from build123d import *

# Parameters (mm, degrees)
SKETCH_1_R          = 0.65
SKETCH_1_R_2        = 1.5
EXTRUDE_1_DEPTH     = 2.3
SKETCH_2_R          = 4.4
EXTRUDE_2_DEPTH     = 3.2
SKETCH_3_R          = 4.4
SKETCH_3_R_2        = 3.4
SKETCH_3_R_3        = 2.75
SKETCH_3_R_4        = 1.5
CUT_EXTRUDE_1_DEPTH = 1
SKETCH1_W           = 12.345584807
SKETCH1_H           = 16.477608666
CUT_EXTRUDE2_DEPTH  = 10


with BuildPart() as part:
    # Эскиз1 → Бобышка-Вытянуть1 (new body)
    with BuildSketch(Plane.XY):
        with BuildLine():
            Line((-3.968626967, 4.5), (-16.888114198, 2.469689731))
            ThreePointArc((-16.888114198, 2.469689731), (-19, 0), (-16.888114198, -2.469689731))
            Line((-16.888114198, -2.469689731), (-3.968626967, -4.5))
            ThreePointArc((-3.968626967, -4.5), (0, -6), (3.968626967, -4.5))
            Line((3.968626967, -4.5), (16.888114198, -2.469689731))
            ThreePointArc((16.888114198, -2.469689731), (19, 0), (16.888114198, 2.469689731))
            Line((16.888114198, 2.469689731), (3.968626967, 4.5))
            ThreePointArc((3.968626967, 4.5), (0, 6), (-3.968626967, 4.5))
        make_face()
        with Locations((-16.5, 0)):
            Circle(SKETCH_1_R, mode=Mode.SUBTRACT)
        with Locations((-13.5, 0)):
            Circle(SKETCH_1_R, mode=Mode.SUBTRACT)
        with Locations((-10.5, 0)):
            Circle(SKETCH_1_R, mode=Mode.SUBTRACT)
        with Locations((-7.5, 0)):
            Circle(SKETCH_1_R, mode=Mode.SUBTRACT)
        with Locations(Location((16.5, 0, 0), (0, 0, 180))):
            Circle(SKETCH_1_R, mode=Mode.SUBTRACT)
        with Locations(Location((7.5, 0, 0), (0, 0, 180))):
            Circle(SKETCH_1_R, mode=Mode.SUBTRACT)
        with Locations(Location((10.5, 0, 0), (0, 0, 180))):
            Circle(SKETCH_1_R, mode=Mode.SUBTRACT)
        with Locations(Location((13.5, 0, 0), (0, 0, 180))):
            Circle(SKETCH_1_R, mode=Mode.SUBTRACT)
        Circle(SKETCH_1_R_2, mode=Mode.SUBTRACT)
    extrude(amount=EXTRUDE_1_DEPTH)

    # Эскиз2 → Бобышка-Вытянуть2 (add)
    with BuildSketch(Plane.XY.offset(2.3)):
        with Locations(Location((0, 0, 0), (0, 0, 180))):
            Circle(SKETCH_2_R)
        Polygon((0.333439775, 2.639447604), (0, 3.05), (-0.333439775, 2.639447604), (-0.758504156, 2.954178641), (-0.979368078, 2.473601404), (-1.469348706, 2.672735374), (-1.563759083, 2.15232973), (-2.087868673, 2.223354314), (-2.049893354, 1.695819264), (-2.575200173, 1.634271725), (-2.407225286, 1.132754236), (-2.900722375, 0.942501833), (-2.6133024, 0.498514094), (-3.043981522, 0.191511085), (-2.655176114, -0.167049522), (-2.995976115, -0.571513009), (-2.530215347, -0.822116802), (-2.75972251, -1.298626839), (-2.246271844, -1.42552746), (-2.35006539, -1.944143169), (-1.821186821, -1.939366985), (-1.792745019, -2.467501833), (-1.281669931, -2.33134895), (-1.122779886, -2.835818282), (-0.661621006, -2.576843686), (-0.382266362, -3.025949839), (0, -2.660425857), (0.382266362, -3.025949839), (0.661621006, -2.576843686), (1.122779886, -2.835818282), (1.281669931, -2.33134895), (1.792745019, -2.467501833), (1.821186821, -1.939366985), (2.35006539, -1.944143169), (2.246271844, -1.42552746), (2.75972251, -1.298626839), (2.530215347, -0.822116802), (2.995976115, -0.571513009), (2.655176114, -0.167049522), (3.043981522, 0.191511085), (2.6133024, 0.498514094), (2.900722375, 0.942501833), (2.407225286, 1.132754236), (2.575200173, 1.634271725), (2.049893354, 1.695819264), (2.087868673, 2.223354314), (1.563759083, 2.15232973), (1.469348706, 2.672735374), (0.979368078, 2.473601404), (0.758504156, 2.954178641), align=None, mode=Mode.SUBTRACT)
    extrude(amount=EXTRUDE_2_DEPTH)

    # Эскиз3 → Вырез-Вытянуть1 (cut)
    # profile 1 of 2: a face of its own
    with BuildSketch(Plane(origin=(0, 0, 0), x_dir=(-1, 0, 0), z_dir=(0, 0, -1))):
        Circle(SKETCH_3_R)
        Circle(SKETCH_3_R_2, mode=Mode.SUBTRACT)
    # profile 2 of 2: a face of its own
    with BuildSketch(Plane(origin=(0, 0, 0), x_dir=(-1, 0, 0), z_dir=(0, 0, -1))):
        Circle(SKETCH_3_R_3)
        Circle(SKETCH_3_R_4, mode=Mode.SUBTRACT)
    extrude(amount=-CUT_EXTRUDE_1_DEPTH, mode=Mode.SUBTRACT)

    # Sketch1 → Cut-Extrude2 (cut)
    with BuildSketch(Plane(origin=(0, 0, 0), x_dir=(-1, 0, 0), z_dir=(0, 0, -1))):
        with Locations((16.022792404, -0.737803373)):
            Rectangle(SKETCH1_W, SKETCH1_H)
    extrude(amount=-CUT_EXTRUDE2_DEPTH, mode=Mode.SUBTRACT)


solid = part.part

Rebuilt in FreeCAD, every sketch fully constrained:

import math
import FreeCAD as App
import Part
import Sketcher

doc = App.newDocument("Part")
body = doc.addObject("PartDesign::Body", "Body")

sketch1 = doc.addObject("Sketcher::SketchObject", "Sketch")
body.addObject(sketch1)
sketch1.AttachmentSupport = (doc.XY_Plane, [""])
sketch1.MapMode = "FlatFace"
sketch1.addGeometry([
    Part.LineSegment(App.Vector(-3.968627, 4.5, 0), App.Vector(-16.888114, 2.46969, 0)),
    Part.ArcOfCircle(Part.Circle(App.Vector(-16.5, 0, 0), App.Vector(0, 0, 1), 2.5), math.radians(98.931045), math.radians(261.068955)),
    Part.LineSegment(App.Vector(-16.888114, -2.46969, 0), App.Vector(-3.968627, -4.5, 0)),
    Part.ArcOfCircle(Part.Circle(App.Vector(0, 0, 0), App.Vector(0, 0, 1), 6), math.radians(-131.409622), math.radians(-48.590378)),
    Part.LineSegment(App.Vector(3.968627, -4.5, 0), App.Vector(16.888114, -2.46969, 0)),
    Part.ArcOfCircle(Part.Circle(App.Vector(16.5, 0, 0), App.Vector(0, 0, 1), 2.5), math.radians(-81.068955), math.radians(81.068955)),
    Part.LineSegment(App.Vector(16.888114, 2.46969, 0), App.Vector(3.968627, 4.5, 0)),
    Part.ArcOfCircle(Part.Circle(App.Vector(0, 0, 0), App.Vector(0, 0, 1), 6), math.radians(48.590378), math.radians(131.409622)),
    Part.Circle(App.Vector(-16.5, 0, 0), App.Vector(0, 0, 1), 0.65),
    Part.Circle(App.Vector(-13.5, 0, 0), App.Vector(0, 0, 1), 0.65),
    Part.Circle(App.Vector(-10.5, 0, 0), App.Vector(0, 0, 1), 0.65),
    Part.Circle(App.Vector(-7.5, 0, 0), App.Vector(0, 0, 1), 0.65),
    Part.Circle(App.Vector(0, 0, 0), App.Vector(0, 0, 1), 1.5),
    Part.Circle(App.Vector(7.5, 0, 0), App.Vector(0, 0, 1), 0.65),
    Part.Circle(App.Vector(10.5, 0, 0), App.Vector(0, 0, 1), 0.65),
    Part.Circle(App.Vector(13.5, 0, 0), App.Vector(0, 0, 1), 0.65),
    Part.Circle(App.Vector(16.5, 0, 0), App.Vector(0, 0, 1), 0.65),
], False)
sketch1.addConstraint([
    Sketcher.Constraint("Tangent", 0, 2, 1, 1),
    Sketcher.Constraint("Tangent", 1, 2, 2, 1),
    Sketcher.Constraint("Coincident", 2, 2, 3, 1),
    Sketcher.Constraint("Coincident", 3, 2, 4, 1),
    Sketcher.Constraint("Tangent", 4, 2, 5, 1),
    Sketcher.Constraint("Tangent", 5, 2, 6, 1),
    Sketcher.Constraint("Coincident", 6, 2, 7, 1),
    Sketcher.Constraint("Coincident", 7, 2, 0, 1),
    Sketcher.Constraint("Coincident", 3, 3, -1, 1),
    Sketcher.Constraint("Coincident", 7, 3, -1, 1),
    Sketcher.Constraint("Coincident", 12, 3, -1, 1),
    Sketcher.Constraint("Coincident", 8, 3, 1, 3),
    Sketcher.Constraint("Coincident", 16, 3, 5, 3),
    Sketcher.Constraint("Equal", 1, 5),
    Sketcher.Constraint("Equal", 3, 7),
    Sketcher.Constraint("Equal", 8, 9),
    Sketcher.Constraint("Equal", 9, 10),
    Sketcher.Constraint("Equal", 10, 11),
    Sketcher.Constraint("Equal", 11, 13),
    Sketcher.Constraint("Equal", 13, 14),
    Sketcher.Constraint("Equal", 14, 15),
    Sketcher.Constraint("Equal", 15, 16),
    Sketcher.Constraint("Symmetric", 1, 3, 5, 3, -1, 1),
    Sketcher.Constraint("Symmetric", 11, 3, 13, 3, -1, 1),
    Sketcher.Constraint("Symmetric", 10, 3, 14, 3, -1, 1),
    Sketcher.Constraint("Symmetric", 9, 3, 15, 3, -1, 1),
    Sketcher.Constraint("Symmetric", 1, 2, 4, 2, -2),
    Sketcher.Constraint("PointOnObject", 9, 3, -1),
    Sketcher.Constraint("PointOnObject", 10, 3, -1),
    Sketcher.Constraint("PointOnObject", 11, 3, -1),
    Sketcher.Constraint("Parallel", 0, 4),
    Sketcher.Constraint("Parallel", 2, 6),
    Sketcher.Constraint("Diameter", 12, 3.0),
    Sketcher.Constraint("Radius", 3, 6.0),
    Sketcher.Constraint("Diameter", 8, 1.3),
    Sketcher.Constraint("Radius", 1, 2.5),
    Sketcher.Constraint("DistanceX", 1, 3, 5, 3, 33.0),
    Sketcher.Constraint("DistanceX", 1, 3, 9, 3, 3.0),
    Sketcher.Constraint("DistanceX", 9, 3, 10, 3, 3.0),
    Sketcher.Constraint("DistanceX", 10, 3, 11, 3, 3.0),
    Sketcher.Constraint("DistanceY", 2, 2, -1, 1, 4.5),
])
pad1 = doc.addObject("PartDesign::Pad", "Pad")
body.addObject(pad1)
pad1.Profile = sketch1
pad1.Length = 2.3

sketch2 = doc.addObject("Sketcher::SketchObject", "Sketch001")
body.addObject(sketch2)
sketch2.AttachmentSupport = (doc.XY_Plane, [""])
sketch2.MapMode = "FlatFace"
sketch2.AttachmentOffset = App.Placement(App.Vector(0, 0, 2.3), App.Rotation())
sketch2.addGeometry([
    Part.Circle(App.Vector(0, 0, 0), App.Vector(0, 0, 1), 4.4),
    Part.LineSegment(App.Vector(0, 3.05, 0), App.Vector(0.33344, 2.639448, 0)),
    Part.LineSegment(App.Vector(0.33344, 2.639448, 0), App.Vector(0.758504, 2.954179, 0)),
    Part.LineSegment(App.Vector(0.758504, 2.954179, 0), App.Vector(0.979368, 2.473601, 0)),
    Part.LineSegment(App.Vector(0.979368, 2.473601, 0), App.Vector(1.469349, 2.672735, 0)),
    Part.LineSegment(App.Vector(1.469349, 2.672735, 0), App.Vector(1.563759, 2.15233, 0)),
    Part.LineSegment(App.Vector(1.563759, 2.15233, 0), App.Vector(2.087869, 2.223354, 0)),
    Part.LineSegment(App.Vector(2.087869, 2.223354, 0), App.Vector(2.049893, 1.695819, 0)),
    Part.LineSegment(App.Vector(2.049893, 1.695819, 0), App.Vector(2.5752, 1.634272, 0)),
    Part.LineSegment(App.Vector(2.5752, 1.634272, 0), App.Vector(2.407225, 1.132754, 0)),
    Part.LineSegment(App.Vector(2.407225, 1.132754, 0), App.Vector(2.900722, 0.942502, 0)),
    Part.LineSegment(App.Vector(2.900722, 0.942502, 0), App.Vector(2.613302, 0.498514, 0)),
    Part.LineSegment(App.Vector(2.613302, 0.498514, 0), App.Vector(3.043982, 0.191511, 0)),
    Part.LineSegment(App.Vector(3.043982, 0.191511, 0), App.Vector(2.655176, -0.16705, 0)),
    Part.LineSegment(App.Vector(2.655176, -0.16705, 0), App.Vector(2.995976, -0.571513, 0)),
    Part.LineSegment(App.Vector(2.995976, -0.571513, 0), App.Vector(2.530215, -0.822117, 0)),
    Part.LineSegment(App.Vector(2.530215, -0.822117, 0), App.Vector(2.759723, -1.298627, 0)),
    Part.LineSegment(App.Vector(2.759723, -1.298627, 0), App.Vector(2.246272, -1.425527, 0)),
    Part.LineSegment(App.Vector(2.246272, -1.425527, 0), App.Vector(2.350065, -1.944143, 0)),
    Part.LineSegment(App.Vector(2.350065, -1.944143, 0), App.Vector(1.821187, -1.939367, 0)),
    Part.LineSegment(App.Vector(1.821187, -1.939367, 0), App.Vector(1.792745, -2.467502, 0)),
    Part.LineSegment(App.Vector(1.792745, -2.467502, 0), App.Vector(1.28167, -2.331349, 0)),
    Part.LineSegment(App.Vector(1.28167, -2.331349, 0), App.Vector(1.12278, -2.835818, 0)),
    Part.LineSegment(App.Vector(1.12278, -2.835818, 0), App.Vector(0.661621, -2.576844, 0)),
    Part.LineSegment(App.Vector(0.661621, -2.576844, 0), App.Vector(0.382266, -3.02595, 0)),
    Part.LineSegment(App.Vector(0.382266, -3.02595, 0), App.Vector(0, -2.660426, 0)),
    Part.LineSegment(App.Vector(0, -2.660426, 0), App.Vector(-0.382266, -3.02595, 0)),
    Part.LineSegment(App.Vector(-0.382266, -3.02595, 0), App.Vector(-0.661621, -2.576844, 0)),
    Part.LineSegment(App.Vector(-0.661621, -2.576844, 0), App.Vector(-1.12278, -2.835818, 0)),
    Part.LineSegment(App.Vector(-1.12278, -2.835818, 0), App.Vector(-1.28167, -2.331349, 0)),
    Part.LineSegment(App.Vector(-1.28167, -2.331349, 0), App.Vector(-1.792745, -2.467502, 0)),
    Part.LineSegment(App.Vector(-1.792745, -2.467502, 0), App.Vector(-1.821187, -1.939367, 0)),
    Part.LineSegment(App.Vector(-1.821187, -1.939367, 0), App.Vector(-2.350065, -1.944143, 0)),
    Part.LineSegment(App.Vector(-2.350065, -1.944143, 0), App.Vector(-2.246272, -1.425527, 0)),
    Part.LineSegment(App.Vector(-2.246272, -1.425527, 0), App.Vector(-2.759723, -1.298627, 0)),
    Part.LineSegment(App.Vector(-2.759723, -1.298627, 0), App.Vector(-2.530215, -0.822117, 0)),
    Part.LineSegment(App.Vector(-2.530215, -0.822117, 0), App.Vector(-2.995976, -0.571513, 0)),
    Part.LineSegment(App.Vector(-2.995976, -0.571513, 0), App.Vector(-2.655176, -0.16705, 0)),
    Part.LineSegment(App.Vector(-2.655176, -0.16705, 0), App.Vector(-3.043982, 0.191511, 0)),
    Part.LineSegment(App.Vector(-3.043982, 0.191511, 0), App.Vector(-2.613302, 0.498514, 0)),
    Part.LineSegment(App.Vector(-2.613302, 0.498514, 0), App.Vector(-2.900722, 0.942502, 0)),
    Part.LineSegment(App.Vector(-2.900722, 0.942502, 0), App.Vector(-2.407225, 1.132754, 0)),
    Part.LineSegment(App.Vector(-2.407225, 1.132754, 0), App.Vector(-2.5752, 1.634272, 0)),
    Part.LineSegment(App.Vector(-2.5752, 1.634272, 0), App.Vector(-2.049893, 1.695819, 0)),
    Part.LineSegment(App.Vector(-2.049893, 1.695819, 0), App.Vector(-2.087869, 2.223354, 0)),
    Part.LineSegment(App.Vector(-2.087869, 2.223354, 0), App.Vector(-1.563759, 2.15233, 0)),
    Part.LineSegment(App.Vector(-1.563759, 2.15233, 0), App.Vector(-1.469349, 2.672735, 0)),
    Part.LineSegment(App.Vector(-1.469349, 2.672735, 0), App.Vector(-0.979368, 2.473601, 0)),
    Part.LineSegment(App.Vector(-0.979368, 2.473601, 0), App.Vector(-0.758504, 2.954179, 0)),
    Part.LineSegment(App.Vector(-0.758504, 2.954179, 0), App.Vector(-0.33344, 2.639448, 0)),
    Part.LineSegment(App.Vector(-0.33344, 2.639448, 0), App.Vector(0, 3.05, 0)),
], False)
sketch2.addConstraint([
    Sketcher.Constraint("Coincident", 1, 2, 2, 1),
    Sketcher.Constraint("Coincident", 2, 2, 3, 1),
    Sketcher.Constraint("Coincident", 3, 2, 4, 1),
    Sketcher.Constraint("Coincident", 4, 2, 5, 1),
    Sketcher.Constraint("Coincident", 5, 2, 6, 1),
    Sketcher.Constraint("Coincident", 6, 2, 7, 1),
    Sketcher.Constraint("Coincident", 7, 2, 8, 1),
    Sketcher.Constraint("Coincident", 8, 2, 9, 1),
    Sketcher.Constraint("Coincident", 9, 2, 10, 1),
    Sketcher.Constraint("Coincident", 10, 2, 11, 1),
    Sketcher.Constraint("Coincident", 11, 2, 12, 1),
    Sketcher.Constraint("Coincident", 12, 2, 13, 1),
    Sketcher.Constraint("Coincident", 13, 2, 14, 1),
    Sketcher.Constraint("Coincident", 14, 2, 15, 1),
    Sketcher.Constraint("Coincident", 15, 2, 16, 1),
    Sketcher.Constraint("Coincident", 16, 2, 17, 1),
    Sketcher.Constraint("Coincident", 17, 2, 18, 1),
    Sketcher.Constraint("Coincident", 18, 2, 19, 1),
    Sketcher.Constraint("Coincident", 19, 2, 20, 1),
    Sketcher.Constraint("Coincident", 20, 2, 21, 1),
    Sketcher.Constraint("Coincident", 21, 2, 22, 1),
    Sketcher.Constraint("Coincident", 22, 2, 23, 1),
    Sketcher.Constraint("Coincident", 23, 2, 24, 1),
    Sketcher.Constraint("Coincident", 24, 2, 25, 1),
    Sketcher.Constraint("Coincident", 25, 2, 26, 1),
    Sketcher.Constraint("Coincident", 26, 2, 27, 1),
    Sketcher.Constraint("Coincident", 27, 2, 28, 1),
    Sketcher.Constraint("Coincident", 28, 2, 29, 1),
    Sketcher.Constraint("Coincident", 29, 2, 30, 1),
    Sketcher.Constraint("Coincident", 30, 2, 31, 1),
    Sketcher.Constraint("Coincident", 31, 2, 32, 1),
    Sketcher.Constraint("Coincident", 32, 2, 33, 1),
    Sketcher.Constraint("Coincident", 33, 2, 34, 1),
    Sketcher.Constraint("Coincident", 34, 2, 35, 1),
    Sketcher.Constraint("Coincident", 35, 2, 36, 1),
    Sketcher.Constraint("Coincident", 36, 2, 37, 1),
    Sketcher.Constraint("Coincident", 37, 2, 38, 1),
    Sketcher.Constraint("Coincident", 38, 2, 39, 1),
    Sketcher.Constraint("Coincident", 39, 2, 40, 1),
    Sketcher.Constraint("Coincident", 40, 2, 41, 1),
    Sketcher.Constraint("Coincident", 41, 2, 42, 1),
    Sketcher.Constraint("Coincident", 42, 2, 43, 1),
    Sketcher.Constraint("Coincident", 43, 2, 44, 1),
    Sketcher.Constraint("Coincident", 44, 2, 45, 1),
    Sketcher.Constraint("Coincident", 45, 2, 46, 1),
    Sketcher.Constraint("Coincident", 46, 2, 47, 1),
    Sketcher.Constraint("Coincident", 47, 2, 48, 1),
    Sketcher.Constraint("Coincident", 48, 2, 49, 1),
    Sketcher.Constraint("Coincident", 49, 2, 50, 1),
    Sketcher.Constraint("Coincident", 50, 2, 1, 1),
    Sketcher.Constraint("Coincident", 0, 3, -1, 1),
    Sketcher.Constraint("Symmetric", 24, 2, 26, 2, -2),
    Sketcher.Constraint("Symmetric", 23, 2, 27, 2, -2),
    Sketcher.Constraint("Symmetric", 22, 2, 28, 2, -2),
    Sketcher.Constraint("Symmetric", 21, 2, 29, 2, -2),
    Sketcher.Constraint("Symmetric", 20, 2, 30, 2, -2),
    Sketcher.Constraint("Symmetric", 19, 2, 31, 2, -2),
    Sketcher.Constraint("Symmetric", 18, 2, 32, 2, -2),
    Sketcher.Constraint("Symmetric", 17, 2, 33, 2, -2),
    Sketcher.Constraint("Symmetric", 16, 2, 34, 2, -2),
    Sketcher.Constraint("Symmetric", 15, 2, 35, 2, -2),
    Sketcher.Constraint("Symmetric", 14, 2, 36, 2, -2),
    Sketcher.Constraint("Symmetric", 13, 2, 37, 2, -2),
    Sketcher.Constraint("Symmetric", 12, 2, 38, 2, -2),
    Sketcher.Constraint("Symmetric", 11, 2, 39, 2, -2),
    Sketcher.Constraint("Symmetric", 10, 2, 40, 2, -2),
    Sketcher.Constraint("Symmetric", 9, 2, 41, 2, -2),
    Sketcher.Constraint("Symmetric", 8, 2, 42, 2, -2),
    Sketcher.Constraint("Symmetric", 7, 2, 43, 2, -2),
    Sketcher.Constraint("Symmetric", 6, 2, 44, 2, -2),
    Sketcher.Constraint("Symmetric", 5, 2, 45, 2, -2),
    Sketcher.Constraint("Symmetric", 4, 2, 46, 2, -2),
    Sketcher.Constraint("Symmetric", 3, 2, 47, 2, -2),
    Sketcher.Constraint("Symmetric", 2, 2, 48, 2, -2),
    Sketcher.Constraint("Symmetric", 1, 2, 49, 2, -2),
    Sketcher.Constraint("PointOnObject", 25, 2, -2),
    Sketcher.Constraint("PointOnObject", 50, 2, -2),
    Sketcher.Constraint("Equal", 1, 2),
    Sketcher.Constraint("Equal", 2, 3),
    Sketcher.Constraint("Equal", 3, 4),
    Sketcher.Constraint("Equal", 4, 5),
    Sketcher.Constraint("Equal", 5, 6),
    Sketcher.Constraint("Equal", 6, 7),
    Sketcher.Constraint("Equal", 7, 8),
    Sketcher.Constraint("Equal", 8, 9),
    Sketcher.Constraint("Equal", 9, 10),
    Sketcher.Constraint("Equal", 10, 11),
    Sketcher.Constraint("Equal", 11, 12),
    Sketcher.Constraint("Equal", 12, 13),
    Sketcher.Constraint("Equal", 13, 14),
    Sketcher.Constraint("Equal", 14, 15),
    Sketcher.Constraint("Equal", 15, 16),
    Sketcher.Constraint("Equal", 16, 17),
    Sketcher.Constraint("Equal", 17, 18),
    Sketcher.Constraint("Equal", 18, 19),
    Sketcher.Constraint("Equal", 19, 20),
    Sketcher.Constraint("Equal", 20, 21),
    Sketcher.Constraint("Equal", 21, 22),
    Sketcher.Constraint("Equal", 22, 23),
    Sketcher.Constraint("Equal", 23, 24),
    Sketcher.Constraint("Equal", 24, 25),
    Sketcher.Constraint("Diameter", 0, 8.8),
    Sketcher.Constraint("DistanceY", -1, 1, 50, 2, 3.05),
    Sketcher.Constraint("Distance", 1, 0.5289),
    Sketcher.Constraint("DistanceY", -1, 1, 3, 2, 2.473601),
    Sketcher.Constraint("DistanceX", -1, 1, 8, 2, 2.5752),
    Sketcher.Constraint("DistanceY", -1, 1, 10, 2, 0.942502),
    Sketcher.Constraint("DistanceY", 20, 2, -1, 1, 2.467502),
    Sketcher.Constraint("DistanceX", 3, 2, 6, 2, 1.108501),
    Sketcher.Constraint("DistanceY", 9, 2, 6, 2, 1.0906),
    Sketcher.Constraint("DistanceX", 13, 2, 14, 2, 0.3408),
    Sketcher.Constraint("DistanceY", 17, 2, 16, 2, 0.126901),
    Sketcher.Constraint("DistanceX", 21, 2, 17, 2, 0.964602),
    Sketcher.Constraint("DistanceY", 23, 2, 18, 2, 0.632701),
    Sketcher.Constraint("DistanceY", 24, 2, 21, 2, 0.694601),
    Sketcher.Constraint("DistanceX", 27, 2, 22, 2, 1.784401),
    Sketcher.Constraint("DistanceX", -1, 1, 1, 2, 0.33344),
    Sketcher.Constraint("DistanceY", -1, 1, 2, 2, 2.954179),
    Sketcher.Constraint("DistanceX", -1, 1, 4, 2, 1.469349),
    Sketcher.Constraint("DistanceX", -1, 1, 5, 2, 1.563759),
    Sketcher.Constraint("DistanceY", -1, 1, 8, 2, 1.634272),
    Sketcher.Constraint("DistanceX", -1, 1, 12, 2, 3.043982),
    Sketcher.Constraint("DistanceY", -1, 1, 12, 2, 0.191511),
    Sketcher.Constraint("DistanceY", 13, 2, -1, 1, 0.16705),
    Sketcher.Constraint("DistanceX", -1, 1, 17, 2, 2.246272),
    Sketcher.Constraint("DistanceY", 21, 2, -1, 1, 2.331349),
    Sketcher.Constraint("DistanceX", -1, 1, 22, 2, 1.12278),
    Sketcher.Constraint("DistanceX", 15, 2, 14, 2, 0.465761),
])
pad2 = doc.addObject("PartDesign::Pad", "Pad001")
body.addObject(pad2)
pad2.Profile = sketch2
pad2.Length = 3.2

sketch3 = doc.addObject("Sketcher::SketchObject", "Sketch002")
body.addObject(sketch3)
sketch3.AttachmentSupport = (doc.XY_Plane, [""])
sketch3.MapMode = "FlatFace"
sketch3.addGeometry([
    Part.Circle(App.Vector(0, 0, 0), App.Vector(0, 0, 1), 4.4),
    Part.Circle(App.Vector(0, 0, 0), App.Vector(0, 0, 1), 3.4),
    Part.Circle(App.Vector(0, 0, 0), App.Vector(0, 0, 1), 2.75),
    Part.Circle(App.Vector(0, 0, 0), App.Vector(0, 0, 1), 1.5),
], False)
sketch3.addConstraint([
    Sketcher.Constraint("Coincident", 0, 3, -1, 1),
    Sketcher.Constraint("Coincident", 1, 3, -1, 1),
    Sketcher.Constraint("Coincident", 2, 3, -1, 1),
    Sketcher.Constraint("Coincident", 3, 3, -1, 1),
    Sketcher.Constraint("Diameter", 3, 3.0),
    Sketcher.Constraint("Diameter", 0, 8.8),
    Sketcher.Constraint("Diameter", 1, 6.8),
    Sketcher.Constraint("Diameter", 2, 5.5),
])
pocket1 = doc.addObject("PartDesign::Pocket", "Pocket")
body.addObject(pocket1)
pocket1.Profile = sketch3
pocket1.Length = 1
pocket1.Reversed = True

sketch4 = doc.addObject("Sketcher::SketchObject", "Sketch003")
body.addObject(sketch4)
sketch4.AttachmentSupport = (doc.XY_Plane, [""])
sketch4.MapMode = "FlatFace"
sketch4.addGeometry([
    Part.LineSegment(App.Vector(-9.85, 7.501001, 0), App.Vector(-9.85, -8.976608, 0)),
    Part.LineSegment(App.Vector(-9.85, -8.976608, 0), App.Vector(-22.195585, -8.976608, 0)),
    Part.LineSegment(App.Vector(-22.195585, -8.976608, 0), App.Vector(-22.195585, 7.501001, 0)),
    Part.LineSegment(App.Vector(-22.195585, 7.501001, 0), App.Vector(-9.85, 7.501001, 0)),
], False)
sketch4.addConstraint([
    Sketcher.Constraint("Coincident", 0, 2, 1, 1),
    Sketcher.Constraint("Coincident", 1, 2, 2, 1),
    Sketcher.Constraint("Coincident", 2, 2, 3, 1),
    Sketcher.Constraint("Coincident", 3, 2, 0, 1),
    Sketcher.Constraint("Vertical", 0),
    Sketcher.Constraint("Horizontal", 1),
    Sketcher.Constraint("Vertical", 2),
    Sketcher.Constraint("Horizontal", 3),
    Sketcher.Constraint("DistanceX", 0, 2, -1, 1, 9.85),
    Sketcher.Constraint("DistanceY", -1, 1, 2, 2, 7.501001),
    Sketcher.Constraint("DistanceY", 0, 2, 0, 1, 16.477609),
    Sketcher.Constraint("DistanceX", 1, 2, 1, 1, 12.345585),
])
pocket2 = doc.addObject("PartDesign::Pocket", "Pocket001")
body.addObject(pocket2)
pocket2.Profile = sketch4
pocket2.Length = 10
pocket2.Reversed = True

doc.recompute()
